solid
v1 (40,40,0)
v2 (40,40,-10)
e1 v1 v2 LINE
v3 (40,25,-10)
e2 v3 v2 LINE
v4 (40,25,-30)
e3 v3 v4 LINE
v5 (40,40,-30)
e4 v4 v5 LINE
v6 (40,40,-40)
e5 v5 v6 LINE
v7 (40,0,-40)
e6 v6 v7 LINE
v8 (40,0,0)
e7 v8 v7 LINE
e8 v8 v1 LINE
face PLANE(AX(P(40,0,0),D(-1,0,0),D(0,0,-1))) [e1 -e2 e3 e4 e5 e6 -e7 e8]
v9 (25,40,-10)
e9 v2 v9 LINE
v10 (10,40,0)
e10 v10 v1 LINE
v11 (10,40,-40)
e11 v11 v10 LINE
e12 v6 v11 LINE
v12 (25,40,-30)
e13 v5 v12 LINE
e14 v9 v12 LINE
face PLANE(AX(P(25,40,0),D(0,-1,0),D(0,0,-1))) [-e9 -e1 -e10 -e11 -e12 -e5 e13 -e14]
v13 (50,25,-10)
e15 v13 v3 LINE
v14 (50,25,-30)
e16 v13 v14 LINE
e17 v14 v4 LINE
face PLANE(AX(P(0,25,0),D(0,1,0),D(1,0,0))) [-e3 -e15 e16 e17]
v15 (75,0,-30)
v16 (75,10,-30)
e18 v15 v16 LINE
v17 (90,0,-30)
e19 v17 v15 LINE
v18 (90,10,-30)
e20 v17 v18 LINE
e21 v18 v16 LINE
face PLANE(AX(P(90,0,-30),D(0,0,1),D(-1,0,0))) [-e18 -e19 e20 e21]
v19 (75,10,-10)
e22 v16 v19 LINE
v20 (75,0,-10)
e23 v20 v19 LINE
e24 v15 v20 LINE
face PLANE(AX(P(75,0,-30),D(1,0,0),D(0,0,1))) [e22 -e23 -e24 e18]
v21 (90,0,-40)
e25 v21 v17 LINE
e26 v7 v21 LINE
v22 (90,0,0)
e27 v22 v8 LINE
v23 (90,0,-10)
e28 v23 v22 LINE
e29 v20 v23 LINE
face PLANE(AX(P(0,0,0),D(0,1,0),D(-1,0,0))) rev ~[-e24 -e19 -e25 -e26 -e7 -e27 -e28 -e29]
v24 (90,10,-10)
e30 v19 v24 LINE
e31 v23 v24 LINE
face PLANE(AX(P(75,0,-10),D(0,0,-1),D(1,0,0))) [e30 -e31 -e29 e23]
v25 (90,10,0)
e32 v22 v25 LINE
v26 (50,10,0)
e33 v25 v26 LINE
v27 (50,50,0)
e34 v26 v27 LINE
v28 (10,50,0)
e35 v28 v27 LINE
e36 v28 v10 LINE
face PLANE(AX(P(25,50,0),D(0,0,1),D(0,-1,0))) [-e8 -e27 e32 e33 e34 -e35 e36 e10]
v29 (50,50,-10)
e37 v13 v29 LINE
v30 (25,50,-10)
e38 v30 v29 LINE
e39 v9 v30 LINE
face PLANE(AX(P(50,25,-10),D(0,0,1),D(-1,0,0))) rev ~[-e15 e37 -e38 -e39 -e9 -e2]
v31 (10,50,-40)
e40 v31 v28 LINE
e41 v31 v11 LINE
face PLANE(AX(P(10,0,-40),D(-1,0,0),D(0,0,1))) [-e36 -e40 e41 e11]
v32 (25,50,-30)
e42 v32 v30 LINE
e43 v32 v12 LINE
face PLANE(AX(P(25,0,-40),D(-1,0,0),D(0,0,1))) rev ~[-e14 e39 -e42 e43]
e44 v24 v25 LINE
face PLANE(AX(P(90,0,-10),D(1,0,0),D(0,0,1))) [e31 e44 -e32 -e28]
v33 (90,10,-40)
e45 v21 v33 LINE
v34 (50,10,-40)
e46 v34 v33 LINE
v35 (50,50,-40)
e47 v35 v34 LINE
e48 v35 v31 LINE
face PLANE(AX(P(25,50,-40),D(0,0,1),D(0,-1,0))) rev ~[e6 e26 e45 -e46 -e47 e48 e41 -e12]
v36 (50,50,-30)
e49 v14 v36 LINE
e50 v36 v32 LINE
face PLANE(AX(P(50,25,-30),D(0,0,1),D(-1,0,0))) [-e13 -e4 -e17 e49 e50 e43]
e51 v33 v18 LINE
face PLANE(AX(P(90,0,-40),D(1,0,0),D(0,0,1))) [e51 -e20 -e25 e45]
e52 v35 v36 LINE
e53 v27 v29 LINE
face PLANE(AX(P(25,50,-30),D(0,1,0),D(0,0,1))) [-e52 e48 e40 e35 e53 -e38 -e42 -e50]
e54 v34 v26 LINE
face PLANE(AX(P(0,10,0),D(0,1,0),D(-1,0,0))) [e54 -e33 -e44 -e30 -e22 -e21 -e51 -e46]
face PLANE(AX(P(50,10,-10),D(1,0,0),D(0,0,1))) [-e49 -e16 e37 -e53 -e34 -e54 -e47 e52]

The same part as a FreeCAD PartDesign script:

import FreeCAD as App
import Part
import Sketcher
from FreeCAD import Vector

doc = App.newDocument("Part")
body = doc.addObject("PartDesign::Body", "Body")

sketch1 = doc.addObject("Sketcher::SketchObject", "Sketch")
body.addObject(sketch1)
sketch1.AttachmentSupport = (doc.XZ_Plane, [""])
sketch1.MapMode = "FlatFace"
sketch1.addGeometry([
    Part.LineSegment(Vector(40, -40, 0), Vector(40, 0, 0)),
    Part.LineSegment(Vector(40, 0, 0), Vector(90, 0, 0)),
    Part.LineSegment(Vector(90, 0, 0), Vector(90, -10, 0)),
    Part.LineSegment(Vector(90, -10, 0), Vector(75, -10, 0)),
    Part.LineSegment(Vector(75, -10, 0), Vector(75, -30, 0)),
    Part.LineSegment(Vector(75, -30, 0), Vector(90, -30, 0)),
    Part.LineSegment(Vector(90, -30, 0), Vector(90, -40, 0)),
    Part.LineSegment(Vector(90, -40, 0), Vector(40, -40, 0)),
], False)
sketch1.addConstraint([
    Sketcher.Constraint("Coincident", 0, 2, 1, 1),
    Sketcher.Constraint("Coincident", 1, 2, 2, 1),
    Sketcher.Constraint("Coincident", 2, 2, 3, 1),
    Sketcher.Constraint("Coincident", 3, 2, 4, 1),
    Sketcher.Constraint("Coincident", 4, 2, 5, 1),
    Sketcher.Constraint("Coincident", 5, 2, 6, 1),
    Sketcher.Constraint("Coincident", 6, 2, 7, 1),
    Sketcher.Constraint("Coincident", 7, 2, 0, 1),
    Sketcher.Constraint("Vertical", 0),
    Sketcher.Constraint("Horizontal", 1),
    Sketcher.Constraint("Vertical", 2),
    Sketcher.Constraint("Horizontal", 3),
    Sketcher.Constraint("Vertical", 4),
    Sketcher.Constraint("Horizontal", 5),
    Sketcher.Constraint("Vertical", 6),
    Sketcher.Constraint("Horizontal", 7),
    Sketcher.Constraint("PointOnObject", 0, 2, -1),
    Sketcher.Constraint("Vertical", 2, 2, 5, 2),
    Sketcher.Constraint("Equal", 2, 6),
    Sketcher.Constraint("DistanceX", 1, 1, 1, 2, 50.0),
    Sketcher.Constraint("DistanceX", 3, 2, 3, 1, 15.0),
    Sketcher.Constraint("DistanceY", 0, 1, 0, 2, 40.0),
    Sketcher.Constraint("DistanceY", 2, 2, 2, 1, 10.0),
    Sketcher.Constraint("DistanceX", -1, 1, 0, 2, 40.0),
])
pad1 = doc.addObject("PartDesign::Pad", "Pad")
body.addObject(pad1)
pad1.Profile = sketch1
pad1.Length = 10
pad1.Reversed = True

sketch2 = doc.addObject("Sketcher::SketchObject", "Sketch001")
body.addObject(sketch2)
sketch2.AttachmentSupport = (doc.XZ_Plane, [""])
sketch2.MapMode = "FlatFace"
sketch2.AttachmentOffset = App.Placement(Vector(0, 0, -10), App.Rotation())
sketch2.addGeometry([
    Part.LineSegment(Vector(40, 0, 0), Vector(50, 0, 0)),
    Part.LineSegment(Vector(50, 0, 0), Vector(50, -40, 0)),
    Part.LineSegment(Vector(50, -40, 0), Vector(40, -40, 0)),
    Part.LineSegment(Vector(40, -40, 0), Vector(40, 0, 0)),
], False)
sketch2.addConstraint([
    Sketcher.Constraint("Coincident", 0, 2, 1, 1),
    Sketcher.Constraint("Coincident", 1, 2, 2, 1),
    Sketcher.Constraint("Coincident", 2, 2, 3, 1),
    Sketcher.Constraint("Coincident", 3, 2, 0, 1),
    Sketcher.Constraint("Horizontal", 0),
    Sketcher.Constraint("Vertical", 1),
    Sketcher.Constraint("Horizontal", 2),
    Sketcher.Constraint("Vertical", 3),
    Sketcher.Constraint("PointOnObject", 0, 2, -1),
    Sketcher.Constraint("DistanceX", 0, 1, 0, 2, 10.0),
    Sketcher.Constraint("DistanceY", 1, 2, 1, 1, 40.0),
    Sketcher.Constraint("DistanceX", -1, 1, 0, 2, 50.0),
])
pad2 = doc.addObject("PartDesign::Pad", "Pad001")
body.addObject(pad2)
pad2.Profile = sketch2
pad2.Length = 15
pad2.Reversed = True

sketch3 = doc.addObject("Sketcher::SketchObject", "Sketch002")
body.addObject(sketch3)
sketch3.AttachmentSupport = (doc.XZ_Plane, [""])
sketch3.MapMode = "FlatFace"
sketch3.AttachmentOffset = App.Placement(Vector(0, 0, -25), App.Rotation())
sketch3.addGeometry([
    Part.LineSegment(Vector(40, -10, 0), Vector(40, 0, 0)),
    Part.LineSegment(Vector(40, 0, 0), Vector(50, 0, 0)),
    Part.LineSegment(Vector(50, 0, 0), Vector(50, -10, 0)),
    Part.LineSegment(Vector(50, -10, 0), Vector(40, -10, 0)),
    Part.LineSegment(Vector(40, -40, 0), Vector(40, -30, 0)),
    Part.LineSegment(Vector(40, -30, 0), Vector(50, -30, 0)),
    Part.LineSegment(Vector(50, -30, 0), Vector(50, -40, 0)),
    Part.LineSegment(Vector(50, -40, 0), Vector(40, -40, 0)),
], False)
sketch3.addConstraint([
    Sketcher.Constraint("Coincident", 0, 2, 1, 1),
    Sketcher.Constraint("Coincident", 1, 2, 2, 1),
    Sketcher.Constraint("Coincident", 2, 2, 3, 1),
    Sketcher.Constraint("Coincident", 3, 2, 0, 1),
    Sketcher.Constraint("Coincident", 4, 2, 5, 1),
    Sketcher.Constraint("Coincident", 5, 2, 6, 1),
    Sketcher.Constraint("Coincident", 6, 2, 7, 1),
    Sketcher.Constraint("Coincident", 7, 2, 4, 1),
    Sketcher.Constraint("Vertical", 0),
    Sketcher.Constraint("Horizontal", 1),
    Sketcher.Constraint("Vertical", 2),
    Sketcher.Constraint("Horizontal", 3),
    Sketcher.Constraint("Vertical", 4),
    Sketcher.Constraint("Horizontal", 5),
    Sketcher.Constraint("Vertical", 6),
    Sketcher.Constraint("Horizontal", 7),
    Sketcher.Constraint("PointOnObject", 0, 2, -1),
    Sketcher.Constraint("Vertical", 3, 2, 4, 2),
    Sketcher.Constraint("Vertical", 2, 2, 5, 2),
    Sketcher.Constraint("Equal", 7, 0),
    Sketcher.Constraint("Equal", 2, 4),
    Sketcher.Constraint("DistanceX", 1, 1, 1, 2, 10.0),
    Sketcher.Constraint("DistanceX", -1, 1, 0, 2, 40.0),
    Sketcher.Constraint("DistanceY", 4, 2, -1, 1, 30.0),
])
pad3 = doc.addObject("PartDesign::Pad", "Pad002")
body.addObject(pad3)
pad3.Profile = sketch3
pad3.Length = 25
pad3.Reversed = True

sketch4 = doc.addObject("Sketcher::SketchObject", "Sketch003")
body.addObject(sketch4)
sketch4.AttachmentSupport = (doc.YZ_Plane, [""])
sketch4.MapMode = "FlatFace"
sketch4.AttachmentOffset = App.Placement(Vector(0, 0, 40), App.Rotation())
sketch4.addGeometry([
    Part.LineSegment(Vector(50, -40, 0), Vector(40, -40, 0)),
    Part.LineSegment(Vector(40, -40, 0), Vector(40, -30, 0)),
    Part.LineSegment(Vector(40, -30, 0), Vector(50, -30, 0)),
    Part.LineSegment(Vector(50, -30, 0), Vector(50, -40, 0)),
    Part.LineSegment(Vector(40, 0, 0), Vector(50, 0, 0)),
    Part.LineSegment(Vector(50, 0, 0), Vector(50, -10, 0)),
    Part.LineSegment(Vector(50, -10, 0), Vector(40, -10, 0)),
    Part.LineSegment(Vector(40, -10, 0), Vector(40, 0, 0)),
], False)
sketch4.addConstraint([
    Sketcher.Constraint("Coincident", 0, 2, 1, 1),
    Sketcher.Constraint("Coincident", 1, 2, 2, 1),
    Sketcher.Constraint("Coincident", 2, 2, 3, 1),
    Sketcher.Constraint("Coincident", 3, 2, 0, 1),
    Sketcher.Constraint("Coincident", 4, 2, 5, 1),
    Sketcher.Constraint("Coincident", 5, 2, 6, 1),
    Sketcher.Constraint("Coincident", 6, 2, 7, 1),
    Sketcher.Constraint("Coincident", 7, 2, 4, 1),
    Sketcher.Constraint("Horizontal", 0),
    Sketcher.Constraint("Vertical", 1),
    Sketcher.Constraint("Horizontal", 2),
    Sketcher.Constraint("Vertical", 3),
    Sketcher.Constraint("Horizontal", 4),
    Sketcher.Constraint("Vertical", 5),
    Sketcher.Constraint("Horizontal", 6),
    Sketcher.Constraint("Vertical", 7),
    Sketcher.Constraint("PointOnObject", 4, 2, -1),
    Sketcher.Constraint("Vertical", 3, 2, 4, 2),
    Sketcher.Constraint("Vertical", 1, 2, 6, 2),
    Sketcher.Constraint("Equal", 6, 1),
    Sketcher.Constraint("Equal", 3, 5),
    Sketcher.Constraint("DistanceX", 0, 2, 0, 1, 10.0),
    Sketcher.Constraint("DistanceX", -1, 1, 0, 2, 40.0),
    Sketcher.Constraint("DistanceY", 0, 2, -1, 1, 40.0),
])
pad4 = doc.addObject("PartDesign::Pad", "Pad003")
body.addObject(pad4)
pad4.Profile = sketch4
pad4.Length = 15
pad4.Reversed = True

sketch5 = doc.addObject("Sketcher::SketchObject", "Sketch004")
body.addObject(sketch5)
sketch5.AttachmentSupport = (doc.YZ_Plane, [""])
sketch5.MapMode = "FlatFace"
sketch5.AttachmentOffset = App.Placement(Vector(0, 0, 25), App.Rotation())
sketch5.addGeometry([
    Part.LineSegment(Vector(50, 0, 0), Vector(50, -40, 0)),
    Part.LineSegment(Vector(50, -40, 0), Vector(40, -40, 0)),
    Part.LineSegment(Vector(40, -40, 0), Vector(40, 0, 0)),
    Part.LineSegment(Vector(40, 0, 0), Vector(50, 0, 0)),
], False)
sketch5.addConstraint([
    Sketcher.Constraint("Coincident", 0, 2, 1, 1),
    Sketcher.Constraint("Coincident", 1, 2, 2, 1),
    Sketcher.Constraint("Coincident", 2, 2, 3, 1),
    Sketcher.Constraint("Coincident", 3, 2, 0, 1),
    Sketcher.Constraint("Vertical", 0),
    Sketcher.Constraint("Horizontal", 1),
    Sketcher.Constraint("Vertical", 2),
    Sketcher.Constraint("Horizontal", 3),
    Sketcher.Constraint("PointOnObject", 2, 2, -1),
    Sketcher.Constraint("DistanceX", 1, 2, 1, 1, 10.0),
    Sketcher.Constraint("DistanceY", 0, 2, 0, 1, 40.0),
    Sketcher.Constraint("DistanceX", -1, 1, 0, 2, 50.0),
])
pad5 = doc.addObject("PartDesign::Pad", "Pad004")
body.addObject(pad5)
pad5.Profile = sketch5
pad5.Length = 15
pad5.Reversed = True

doc.recompute()
